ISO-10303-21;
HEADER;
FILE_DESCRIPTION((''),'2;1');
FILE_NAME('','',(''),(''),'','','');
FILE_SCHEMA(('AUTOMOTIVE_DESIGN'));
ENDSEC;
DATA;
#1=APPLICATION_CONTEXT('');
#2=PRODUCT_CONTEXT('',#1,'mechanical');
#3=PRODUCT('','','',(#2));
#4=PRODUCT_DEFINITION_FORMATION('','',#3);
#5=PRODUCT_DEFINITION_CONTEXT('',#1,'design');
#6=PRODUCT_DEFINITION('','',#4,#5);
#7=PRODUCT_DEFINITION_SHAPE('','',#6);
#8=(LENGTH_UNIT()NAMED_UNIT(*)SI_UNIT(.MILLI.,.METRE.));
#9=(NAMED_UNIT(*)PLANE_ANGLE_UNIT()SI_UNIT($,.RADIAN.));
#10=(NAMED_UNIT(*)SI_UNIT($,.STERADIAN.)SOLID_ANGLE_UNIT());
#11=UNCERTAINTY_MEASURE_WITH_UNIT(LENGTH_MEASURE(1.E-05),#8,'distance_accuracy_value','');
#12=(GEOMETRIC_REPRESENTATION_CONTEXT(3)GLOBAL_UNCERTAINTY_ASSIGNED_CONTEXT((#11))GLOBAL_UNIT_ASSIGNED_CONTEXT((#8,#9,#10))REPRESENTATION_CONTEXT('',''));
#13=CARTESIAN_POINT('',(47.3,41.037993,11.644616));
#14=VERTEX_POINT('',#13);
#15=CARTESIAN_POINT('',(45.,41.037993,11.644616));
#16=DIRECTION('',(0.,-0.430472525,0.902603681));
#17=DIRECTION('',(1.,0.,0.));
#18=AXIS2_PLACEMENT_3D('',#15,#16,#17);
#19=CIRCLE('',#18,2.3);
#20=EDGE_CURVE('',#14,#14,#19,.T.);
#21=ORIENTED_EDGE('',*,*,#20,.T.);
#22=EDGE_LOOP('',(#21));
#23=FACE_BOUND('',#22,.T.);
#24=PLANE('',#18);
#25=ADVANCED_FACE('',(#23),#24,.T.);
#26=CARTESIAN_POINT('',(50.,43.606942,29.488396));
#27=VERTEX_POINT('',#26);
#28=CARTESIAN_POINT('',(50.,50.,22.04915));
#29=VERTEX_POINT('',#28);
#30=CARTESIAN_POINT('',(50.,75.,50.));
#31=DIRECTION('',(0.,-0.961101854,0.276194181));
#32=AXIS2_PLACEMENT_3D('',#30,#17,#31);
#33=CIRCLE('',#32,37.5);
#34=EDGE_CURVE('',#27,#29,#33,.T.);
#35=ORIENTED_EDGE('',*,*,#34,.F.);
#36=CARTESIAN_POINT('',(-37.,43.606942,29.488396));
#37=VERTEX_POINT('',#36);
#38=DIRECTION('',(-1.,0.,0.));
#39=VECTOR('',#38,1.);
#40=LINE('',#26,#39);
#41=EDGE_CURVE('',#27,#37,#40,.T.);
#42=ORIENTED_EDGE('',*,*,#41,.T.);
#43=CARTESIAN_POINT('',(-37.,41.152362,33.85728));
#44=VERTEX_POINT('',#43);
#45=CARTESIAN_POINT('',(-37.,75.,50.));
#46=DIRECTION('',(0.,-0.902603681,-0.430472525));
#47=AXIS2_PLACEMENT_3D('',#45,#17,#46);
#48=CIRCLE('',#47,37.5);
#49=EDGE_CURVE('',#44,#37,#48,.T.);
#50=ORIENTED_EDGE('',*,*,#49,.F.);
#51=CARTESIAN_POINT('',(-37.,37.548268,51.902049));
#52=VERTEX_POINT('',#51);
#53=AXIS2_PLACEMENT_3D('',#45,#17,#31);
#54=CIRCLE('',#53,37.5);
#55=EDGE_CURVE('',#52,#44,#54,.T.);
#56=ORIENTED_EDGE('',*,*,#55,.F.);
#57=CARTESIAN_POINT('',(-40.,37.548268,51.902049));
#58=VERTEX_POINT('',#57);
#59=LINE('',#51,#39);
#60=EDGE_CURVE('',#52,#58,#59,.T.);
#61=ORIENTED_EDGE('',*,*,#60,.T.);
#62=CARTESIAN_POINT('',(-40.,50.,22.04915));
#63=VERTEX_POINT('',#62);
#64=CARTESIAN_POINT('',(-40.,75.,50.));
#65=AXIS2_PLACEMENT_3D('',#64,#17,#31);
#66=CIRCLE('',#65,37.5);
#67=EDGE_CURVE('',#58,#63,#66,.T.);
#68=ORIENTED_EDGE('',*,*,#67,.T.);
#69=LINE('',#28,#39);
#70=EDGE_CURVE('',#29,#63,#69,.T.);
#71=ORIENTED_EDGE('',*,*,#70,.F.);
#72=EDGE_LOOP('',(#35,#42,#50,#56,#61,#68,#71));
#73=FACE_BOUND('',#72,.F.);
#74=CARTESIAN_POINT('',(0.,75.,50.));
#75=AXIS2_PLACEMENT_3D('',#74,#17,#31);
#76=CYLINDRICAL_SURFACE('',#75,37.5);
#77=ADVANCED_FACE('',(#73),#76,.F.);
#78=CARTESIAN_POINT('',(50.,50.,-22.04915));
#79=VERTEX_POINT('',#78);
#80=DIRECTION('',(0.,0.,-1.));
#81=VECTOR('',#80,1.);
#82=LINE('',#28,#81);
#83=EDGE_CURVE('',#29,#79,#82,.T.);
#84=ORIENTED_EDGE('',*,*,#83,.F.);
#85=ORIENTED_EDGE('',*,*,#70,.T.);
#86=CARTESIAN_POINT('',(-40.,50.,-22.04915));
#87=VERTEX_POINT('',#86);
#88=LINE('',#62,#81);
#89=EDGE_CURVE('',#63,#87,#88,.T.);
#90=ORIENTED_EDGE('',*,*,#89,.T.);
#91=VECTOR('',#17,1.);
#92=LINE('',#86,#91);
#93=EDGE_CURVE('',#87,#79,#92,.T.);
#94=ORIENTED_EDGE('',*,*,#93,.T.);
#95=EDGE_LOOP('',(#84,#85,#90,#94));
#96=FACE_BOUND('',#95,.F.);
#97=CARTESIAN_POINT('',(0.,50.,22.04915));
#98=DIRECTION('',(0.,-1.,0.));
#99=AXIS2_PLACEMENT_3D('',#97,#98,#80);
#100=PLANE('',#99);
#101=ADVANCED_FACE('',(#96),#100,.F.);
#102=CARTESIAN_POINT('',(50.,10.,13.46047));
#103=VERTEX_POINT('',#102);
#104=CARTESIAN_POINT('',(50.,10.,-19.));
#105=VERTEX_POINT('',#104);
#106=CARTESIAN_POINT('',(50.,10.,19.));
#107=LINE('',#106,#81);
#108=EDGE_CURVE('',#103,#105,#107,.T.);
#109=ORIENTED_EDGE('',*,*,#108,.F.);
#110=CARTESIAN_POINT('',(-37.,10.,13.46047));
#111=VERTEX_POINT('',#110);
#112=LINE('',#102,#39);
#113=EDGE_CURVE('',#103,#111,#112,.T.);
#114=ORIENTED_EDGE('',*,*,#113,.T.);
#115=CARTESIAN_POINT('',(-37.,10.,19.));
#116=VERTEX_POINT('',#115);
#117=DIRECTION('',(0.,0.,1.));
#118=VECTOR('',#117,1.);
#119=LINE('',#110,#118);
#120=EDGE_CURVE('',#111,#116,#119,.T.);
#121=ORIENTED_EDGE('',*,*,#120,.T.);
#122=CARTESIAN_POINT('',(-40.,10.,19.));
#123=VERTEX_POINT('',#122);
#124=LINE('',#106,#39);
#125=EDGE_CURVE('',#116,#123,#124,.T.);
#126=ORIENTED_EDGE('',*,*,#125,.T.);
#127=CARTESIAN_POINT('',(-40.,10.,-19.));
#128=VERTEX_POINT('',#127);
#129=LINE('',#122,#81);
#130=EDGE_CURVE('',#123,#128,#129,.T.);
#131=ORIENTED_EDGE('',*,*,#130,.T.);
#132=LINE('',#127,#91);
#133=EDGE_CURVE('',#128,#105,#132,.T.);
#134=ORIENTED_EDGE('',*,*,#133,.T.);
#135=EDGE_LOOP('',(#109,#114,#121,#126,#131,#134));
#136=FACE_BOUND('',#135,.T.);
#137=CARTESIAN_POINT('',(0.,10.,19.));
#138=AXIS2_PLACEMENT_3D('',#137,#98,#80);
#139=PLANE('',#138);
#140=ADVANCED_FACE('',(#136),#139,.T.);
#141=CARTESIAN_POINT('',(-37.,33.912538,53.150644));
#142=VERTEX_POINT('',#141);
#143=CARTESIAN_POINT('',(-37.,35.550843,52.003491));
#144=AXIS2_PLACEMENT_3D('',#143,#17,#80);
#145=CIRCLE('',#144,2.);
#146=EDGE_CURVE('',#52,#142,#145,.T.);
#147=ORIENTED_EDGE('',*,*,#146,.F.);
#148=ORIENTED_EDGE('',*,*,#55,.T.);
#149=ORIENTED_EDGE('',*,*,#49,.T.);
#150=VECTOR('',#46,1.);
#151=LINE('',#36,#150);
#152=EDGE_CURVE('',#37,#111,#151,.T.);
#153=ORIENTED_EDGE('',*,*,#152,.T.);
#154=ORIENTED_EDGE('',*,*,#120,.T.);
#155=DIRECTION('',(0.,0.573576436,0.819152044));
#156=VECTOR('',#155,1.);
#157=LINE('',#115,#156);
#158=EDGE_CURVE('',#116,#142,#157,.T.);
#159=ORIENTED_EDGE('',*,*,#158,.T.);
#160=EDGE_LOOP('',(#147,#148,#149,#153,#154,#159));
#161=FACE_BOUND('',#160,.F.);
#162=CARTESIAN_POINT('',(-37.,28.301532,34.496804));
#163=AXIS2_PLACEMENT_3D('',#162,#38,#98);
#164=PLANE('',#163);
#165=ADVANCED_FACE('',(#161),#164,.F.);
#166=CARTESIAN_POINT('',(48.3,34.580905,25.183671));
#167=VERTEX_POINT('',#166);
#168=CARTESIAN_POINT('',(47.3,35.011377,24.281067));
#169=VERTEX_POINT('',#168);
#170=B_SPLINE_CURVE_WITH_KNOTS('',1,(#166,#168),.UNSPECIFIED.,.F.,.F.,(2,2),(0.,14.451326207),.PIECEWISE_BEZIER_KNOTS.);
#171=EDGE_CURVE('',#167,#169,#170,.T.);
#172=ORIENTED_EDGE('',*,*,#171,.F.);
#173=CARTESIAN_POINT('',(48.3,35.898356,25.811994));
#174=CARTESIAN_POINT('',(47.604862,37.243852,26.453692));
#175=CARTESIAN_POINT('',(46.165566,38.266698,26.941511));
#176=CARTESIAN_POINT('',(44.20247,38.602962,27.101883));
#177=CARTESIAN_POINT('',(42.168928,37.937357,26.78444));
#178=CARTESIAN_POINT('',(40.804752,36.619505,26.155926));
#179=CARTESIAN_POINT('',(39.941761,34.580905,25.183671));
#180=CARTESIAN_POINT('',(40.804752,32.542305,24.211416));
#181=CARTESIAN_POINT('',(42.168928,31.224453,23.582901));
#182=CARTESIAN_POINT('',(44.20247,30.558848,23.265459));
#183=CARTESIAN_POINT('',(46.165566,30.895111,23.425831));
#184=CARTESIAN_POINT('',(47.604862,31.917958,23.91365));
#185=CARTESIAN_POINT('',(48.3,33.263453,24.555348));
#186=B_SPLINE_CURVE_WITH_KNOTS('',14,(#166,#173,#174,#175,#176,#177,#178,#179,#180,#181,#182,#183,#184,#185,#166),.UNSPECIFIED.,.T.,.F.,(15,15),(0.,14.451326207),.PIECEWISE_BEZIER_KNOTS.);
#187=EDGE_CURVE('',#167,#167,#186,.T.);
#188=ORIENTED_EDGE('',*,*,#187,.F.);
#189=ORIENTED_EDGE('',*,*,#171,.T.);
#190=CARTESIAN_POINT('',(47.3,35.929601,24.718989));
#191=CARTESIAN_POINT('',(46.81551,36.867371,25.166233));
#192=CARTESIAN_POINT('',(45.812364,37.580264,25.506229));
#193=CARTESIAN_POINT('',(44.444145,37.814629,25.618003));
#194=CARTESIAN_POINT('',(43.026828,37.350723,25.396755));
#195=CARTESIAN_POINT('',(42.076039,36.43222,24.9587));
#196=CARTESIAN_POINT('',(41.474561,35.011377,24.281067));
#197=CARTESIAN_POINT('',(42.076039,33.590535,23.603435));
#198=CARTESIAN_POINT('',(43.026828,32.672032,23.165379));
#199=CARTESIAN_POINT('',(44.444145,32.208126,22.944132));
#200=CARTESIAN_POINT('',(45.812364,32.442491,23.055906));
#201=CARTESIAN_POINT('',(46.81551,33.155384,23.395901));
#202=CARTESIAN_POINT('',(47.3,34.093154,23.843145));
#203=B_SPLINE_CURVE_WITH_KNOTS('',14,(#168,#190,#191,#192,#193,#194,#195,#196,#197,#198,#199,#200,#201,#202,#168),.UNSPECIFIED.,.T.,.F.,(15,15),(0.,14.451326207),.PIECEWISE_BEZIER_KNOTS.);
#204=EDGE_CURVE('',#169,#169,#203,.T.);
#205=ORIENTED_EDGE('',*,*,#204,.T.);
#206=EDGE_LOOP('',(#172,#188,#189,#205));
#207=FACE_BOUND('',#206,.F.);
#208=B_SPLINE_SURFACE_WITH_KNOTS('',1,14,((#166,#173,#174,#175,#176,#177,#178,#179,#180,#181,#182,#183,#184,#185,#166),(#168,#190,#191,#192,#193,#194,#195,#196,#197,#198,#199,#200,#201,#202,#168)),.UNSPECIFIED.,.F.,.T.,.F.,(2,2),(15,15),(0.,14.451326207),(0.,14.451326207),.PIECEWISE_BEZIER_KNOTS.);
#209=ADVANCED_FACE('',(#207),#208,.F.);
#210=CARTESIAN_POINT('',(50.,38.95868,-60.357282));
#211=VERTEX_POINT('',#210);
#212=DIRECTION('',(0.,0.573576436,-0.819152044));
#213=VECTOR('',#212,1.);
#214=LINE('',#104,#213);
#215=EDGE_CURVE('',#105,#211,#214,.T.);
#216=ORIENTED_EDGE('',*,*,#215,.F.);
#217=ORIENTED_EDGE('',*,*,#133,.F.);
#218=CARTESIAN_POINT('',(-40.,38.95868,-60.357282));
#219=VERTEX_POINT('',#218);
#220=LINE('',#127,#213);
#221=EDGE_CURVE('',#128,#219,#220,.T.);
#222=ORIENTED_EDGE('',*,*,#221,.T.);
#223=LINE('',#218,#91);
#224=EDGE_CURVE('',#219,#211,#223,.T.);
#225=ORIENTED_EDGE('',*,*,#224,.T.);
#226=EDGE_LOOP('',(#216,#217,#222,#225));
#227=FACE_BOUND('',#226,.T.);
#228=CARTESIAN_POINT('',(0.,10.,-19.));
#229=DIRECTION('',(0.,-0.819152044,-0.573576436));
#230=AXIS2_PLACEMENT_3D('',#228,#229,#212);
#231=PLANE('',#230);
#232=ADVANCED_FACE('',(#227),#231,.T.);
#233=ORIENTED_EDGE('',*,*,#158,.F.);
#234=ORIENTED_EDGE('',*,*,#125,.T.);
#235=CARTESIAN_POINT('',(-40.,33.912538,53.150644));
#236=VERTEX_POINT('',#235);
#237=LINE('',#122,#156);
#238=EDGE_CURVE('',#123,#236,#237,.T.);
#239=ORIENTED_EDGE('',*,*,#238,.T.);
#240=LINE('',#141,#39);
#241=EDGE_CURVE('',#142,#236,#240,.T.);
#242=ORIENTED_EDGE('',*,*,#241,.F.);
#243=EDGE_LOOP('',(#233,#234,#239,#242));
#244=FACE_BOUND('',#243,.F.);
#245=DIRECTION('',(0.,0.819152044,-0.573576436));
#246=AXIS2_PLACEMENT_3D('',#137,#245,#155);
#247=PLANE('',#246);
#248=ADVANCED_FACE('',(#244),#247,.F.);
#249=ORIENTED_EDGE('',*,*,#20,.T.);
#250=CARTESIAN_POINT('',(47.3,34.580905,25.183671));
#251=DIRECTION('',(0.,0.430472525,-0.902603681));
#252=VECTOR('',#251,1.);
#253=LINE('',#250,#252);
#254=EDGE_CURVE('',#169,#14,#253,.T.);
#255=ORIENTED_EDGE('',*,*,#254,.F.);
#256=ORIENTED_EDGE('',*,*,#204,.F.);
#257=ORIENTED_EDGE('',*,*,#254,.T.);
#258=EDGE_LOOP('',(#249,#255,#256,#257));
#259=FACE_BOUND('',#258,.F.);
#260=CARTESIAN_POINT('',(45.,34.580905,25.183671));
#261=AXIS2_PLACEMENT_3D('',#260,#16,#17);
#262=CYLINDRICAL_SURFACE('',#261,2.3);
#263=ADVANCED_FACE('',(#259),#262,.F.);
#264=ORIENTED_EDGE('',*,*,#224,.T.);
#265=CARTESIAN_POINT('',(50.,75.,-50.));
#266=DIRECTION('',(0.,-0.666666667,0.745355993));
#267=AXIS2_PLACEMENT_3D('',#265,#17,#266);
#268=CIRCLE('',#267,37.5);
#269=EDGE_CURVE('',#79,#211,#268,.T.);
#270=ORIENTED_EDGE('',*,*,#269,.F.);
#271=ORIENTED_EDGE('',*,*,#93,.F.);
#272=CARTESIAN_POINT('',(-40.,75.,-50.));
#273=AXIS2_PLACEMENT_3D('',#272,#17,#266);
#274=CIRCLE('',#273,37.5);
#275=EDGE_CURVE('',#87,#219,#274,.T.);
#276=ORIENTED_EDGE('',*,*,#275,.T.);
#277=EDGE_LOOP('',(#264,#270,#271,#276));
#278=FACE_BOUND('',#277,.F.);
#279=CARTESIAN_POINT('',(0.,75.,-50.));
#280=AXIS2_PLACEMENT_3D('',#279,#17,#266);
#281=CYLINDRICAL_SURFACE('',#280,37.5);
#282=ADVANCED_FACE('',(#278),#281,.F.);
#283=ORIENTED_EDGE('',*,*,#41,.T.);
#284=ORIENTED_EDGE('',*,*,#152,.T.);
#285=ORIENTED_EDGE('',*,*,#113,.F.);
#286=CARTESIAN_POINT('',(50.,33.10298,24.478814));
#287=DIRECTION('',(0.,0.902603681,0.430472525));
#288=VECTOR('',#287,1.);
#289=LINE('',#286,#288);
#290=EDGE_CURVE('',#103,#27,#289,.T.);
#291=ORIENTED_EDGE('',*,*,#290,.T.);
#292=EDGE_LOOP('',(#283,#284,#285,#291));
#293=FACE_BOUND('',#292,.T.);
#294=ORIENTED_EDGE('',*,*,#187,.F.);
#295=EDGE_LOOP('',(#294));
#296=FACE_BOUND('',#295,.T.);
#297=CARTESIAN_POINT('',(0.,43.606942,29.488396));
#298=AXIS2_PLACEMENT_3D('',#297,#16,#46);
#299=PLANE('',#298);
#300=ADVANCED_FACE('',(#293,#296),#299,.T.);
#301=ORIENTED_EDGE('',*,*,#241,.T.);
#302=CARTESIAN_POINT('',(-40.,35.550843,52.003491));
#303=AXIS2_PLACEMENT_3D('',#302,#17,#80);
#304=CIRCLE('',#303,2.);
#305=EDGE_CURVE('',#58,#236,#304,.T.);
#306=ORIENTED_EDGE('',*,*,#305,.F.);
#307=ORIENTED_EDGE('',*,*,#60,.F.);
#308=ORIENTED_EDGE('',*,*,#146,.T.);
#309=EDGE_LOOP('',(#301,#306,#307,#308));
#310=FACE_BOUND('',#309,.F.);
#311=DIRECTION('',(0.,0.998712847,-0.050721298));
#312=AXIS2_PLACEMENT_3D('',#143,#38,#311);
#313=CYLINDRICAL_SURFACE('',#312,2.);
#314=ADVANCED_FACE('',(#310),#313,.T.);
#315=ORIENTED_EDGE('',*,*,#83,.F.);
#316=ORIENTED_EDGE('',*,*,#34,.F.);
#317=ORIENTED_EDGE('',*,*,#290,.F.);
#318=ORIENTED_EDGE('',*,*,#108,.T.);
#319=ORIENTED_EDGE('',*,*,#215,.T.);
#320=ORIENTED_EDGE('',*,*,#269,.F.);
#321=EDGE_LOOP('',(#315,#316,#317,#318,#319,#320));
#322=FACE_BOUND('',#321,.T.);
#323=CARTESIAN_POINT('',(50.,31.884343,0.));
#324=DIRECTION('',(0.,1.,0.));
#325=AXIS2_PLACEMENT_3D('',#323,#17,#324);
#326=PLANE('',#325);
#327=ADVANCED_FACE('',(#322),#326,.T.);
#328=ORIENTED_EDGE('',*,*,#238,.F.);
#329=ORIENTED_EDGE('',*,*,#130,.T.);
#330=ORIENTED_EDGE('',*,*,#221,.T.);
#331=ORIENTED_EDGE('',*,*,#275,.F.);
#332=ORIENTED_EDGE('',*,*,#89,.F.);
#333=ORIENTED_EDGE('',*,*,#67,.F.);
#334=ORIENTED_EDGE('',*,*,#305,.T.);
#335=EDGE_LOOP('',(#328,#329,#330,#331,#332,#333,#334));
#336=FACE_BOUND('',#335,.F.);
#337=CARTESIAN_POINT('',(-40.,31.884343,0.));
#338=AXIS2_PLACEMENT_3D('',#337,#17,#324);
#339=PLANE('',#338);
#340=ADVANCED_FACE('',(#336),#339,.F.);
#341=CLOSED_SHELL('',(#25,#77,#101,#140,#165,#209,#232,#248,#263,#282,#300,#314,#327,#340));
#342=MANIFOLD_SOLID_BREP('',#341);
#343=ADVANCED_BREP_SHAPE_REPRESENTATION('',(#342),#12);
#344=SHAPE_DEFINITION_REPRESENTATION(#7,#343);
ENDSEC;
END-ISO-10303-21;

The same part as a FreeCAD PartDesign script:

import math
import FreeCAD as App
import Part
import Sketcher
from FreeCAD import Vector
Q = App.Units.Quantity


def edges_at(feature, points):
    """Names of the edges that pass closest to the given points."""
    edges = feature.Shape.Edges
    near = lambda p: min(range(len(edges)), key=lambda i: edges[i].distToShape(Part.Vertex(*p))[0])
    return sorted({f"Edge{near(p) + 1}" for p in points})

doc = App.newDocument("Part")
body = doc.addObject("PartDesign::Body", "Body")

# Sketch on YZ plane
sketch1 = doc.addObject("Sketcher::SketchObject", "Sketch")
body.addObject(sketch1)
sketch1.AttachmentSupport = (doc.YZ_Plane, [""])
sketch1.MapMode = "FlatFace"
sketch1.addGeometry([
    Part.LineSegment(Vector(0, 19, 0), Vector(0, -19, 0)),  # 0
    Part.LineSegment(Vector(0, -19, 0), Vector(29, -60, 0)),  # 1
    Part.ArcOfCircle(Part.Circle(Vector(65, -50, 0), Vector(0, 0, 1), 38), math.radians(132), math.radians(196)),  # 2
    Part.LineSegment(Vector(40, -22, 0), Vector(40, 22, 0)),  # 3
    Part.ArcOfCircle(Part.Circle(Vector(65, 50, 0), Vector(0, 0, 1), 38), math.radians(164), math.radians(228)),  # 4
    Part.LineSegment(Vector(29, 60, 0), Vector(0, 19, 0)),  # 5
], False)
sketch1.addConstraint([
    Sketcher.Constraint("Coincident", 0, 2, 1, 1),
    Sketcher.Constraint("Coincident", 1, 2, 2, 2),
    Sketcher.Constraint("Coincident", 2, 1, 3, 1),
    Sketcher.Constraint("Coincident", 3, 2, 4, 2),
    Sketcher.Constraint("Coincident", 4, 1, 5, 1),
    Sketcher.Constraint("Coincident", 5, 2, 0, 1),
    Sketcher.Constraint("Vertical", 0),
    Sketcher.Constraint("Vertical", 3),
    Sketcher.Constraint("Equal", 2, 4),
    Sketcher.Constraint("Symmetric", 0, 2, 5, 2, -1, 1),
    Sketcher.Constraint("Symmetric", 2, 3, 4, 3, -1),
    Sketcher.Constraint("Vertical", 1, 2, 4, 1),
    Sketcher.Constraint("Radius", 2, Q("37.5 mm")),
    Sketcher.Constraint("DistanceY", 0, 2, 0, 1, Q("38 mm")),
    Sketcher.Constraint("Angle", 1, Q("-55 deg")),
    Sketcher.Constraint("DistanceX", -1, 1, 2, 3, Q("65 mm")),
    Sketcher.Constraint("DistanceY", 2, 3, -1, 1, Q("50 mm")),
    Sketcher.Constraint("DistanceX", -1, 1, 2, 1, Q("40 mm")),
])
pad1 = doc.addObject("PartDesign::Pad", "Pad")
body.addObject(pad1)
pad1.Profile = sketch1
pad1.Type = "TwoLengths"
pad1.Length = 50
pad1.Length2 = 40

# Sketch on YZ plane
sketch2 = doc.addObject("Sketcher::SketchObject", "Sketch001")
body.addObject(sketch2)
sketch2.AttachmentSupport = (doc.YZ_Plane, [""])
sketch2.MapMode = "FlatFace"
sketch2.addGeometry([
    Part.ArcOfCircle(Part.Circle(Vector(65, 50, 0), Vector(0, 0, 1), 38), math.radians(164), math.radians(205)),  # 0
    Part.LineSegment(Vector(29, 60, 0), Vector(0, 19, 0)),  # 1
    Part.LineSegment(Vector(0, 19, 0), Vector(0, 13, 0)),  # 2
    Part.LineSegment(Vector(0, 13, 0), Vector(34, 29, 0)),  # 3
    Part.ArcOfCircle(Part.Circle(Vector(65, 50, 0), Vector(0, 0, 1), 38), math.radians(-154.5), math.radians(-146.84)),  # 4
], False)
sketch2.addConstraint([
    Sketcher.Constraint("Coincident", 0, 1, 1, 1),
    Sketcher.Constraint("Coincident", 1, 2, 2, 1),
    Sketcher.Constraint("Coincident", 2, 2, 3, 1),
    Sketcher.Constraint("Coincident", 3, 2, 4, 2),
    Sketcher.Constraint("Tangent", 4, 1, 0, 2),
    Sketcher.Constraint("Vertical", 2),
    Sketcher.Constraint("Equal", 0, 4),
    Sketcher.Constraint("PointOnObject", 1, 2, -2),
    Sketcher.Constraint("Radius", 0, Q("37.5 mm")),
    Sketcher.Constraint("Angle", 1, Q("-125 deg")),
    Sketcher.Constraint("DistanceX", -1, 1, 0, 3, Q("65 mm")),
    Sketcher.Constraint("DistanceY", -1, 1, 0, 3, Q("50 mm")),
    Sketcher.Constraint("DistanceY", -1, 1, 1, 2, Q("19 mm")),
    Sketcher.Constraint("DistanceY", 4, 1, 0, 1, Q("26.500001 mm")),
    Sketcher.Constraint("DistanceY", 2, 2, 2, 1, Q("5.53953 mm")),
    Sketcher.Constraint("Distance", 3, Q("37.233331 mm")),
])
pocket1 = doc.addObject("PartDesign::Pocket", "Pocket")
body.addObject(pocket1)
pocket1.Profile = sketch2
pocket1.Type = "TwoLengths"
pocket1.Length = 37
pocket1.Length2 = 100
doc.recompute()

fillet = doc.addObject("PartDesign::Fillet", "Fillet")
body.addObject(fillet)
fillet.Base = (pocket1, edges_at(pocket1, [(-38.5, 28.959, 60.357)]))
fillet.Radius = 2

# Sketch on an angled plane
sketch3 = doc.addObject("Sketcher::SketchObject", "Sketch002")
body.addObject(sketch3)
sketch3.Placement = App.Placement(Vector(0, -5.230013, 10.966156), App.Rotation(Vector(1, 0, 0), Vector(0, 0.902603681, 0.430472525), Vector(0, -0.430472525, 0.902603681), "ZXY"))
sketch3.addGeometry(Part.Circle(Vector(45, 33, 0), Vector(0, 0, 1), 2.3), False)
sketch3.addConstraint([
    Sketcher.Constraint("Diameter", 0, Q("4.6 mm")),
    Sketcher.Constraint("DistanceX", -1, 1, 0, 3, Q("45 mm")),
    Sketcher.Constraint("DistanceY", -1, 1, 0, 3, Q("33.027694 mm")),
])
pocket2 = doc.addObject("PartDesign::Pocket", "Pocket001")
body.addObject(pocket2)
pocket2.Profile = sketch3
pocket2.Length = 15
doc.recompute()

chamfer = doc.addObject("PartDesign::Chamfer", "Chamfer")
body.addObject(chamfer)
chamfer.Base = (pocket2, edges_at(pocket2, [(42.7, 24.581, 25.184)]))
chamfer.Size = 1
body2 = doc.addObject("PartDesign::Body", "Body001")
doc.recompute()

body.Placement = App.Placement(Vector(0, 10, 0), App.Rotation(Vector(0, 0, 1), 0))
boolean = doc.addObject("PartDesign::Boolean", "Boolean")
body2.addObject(boolean)
boolean.Type = "Fuse"
boolean.addObjects([body])

doc.recompute()
